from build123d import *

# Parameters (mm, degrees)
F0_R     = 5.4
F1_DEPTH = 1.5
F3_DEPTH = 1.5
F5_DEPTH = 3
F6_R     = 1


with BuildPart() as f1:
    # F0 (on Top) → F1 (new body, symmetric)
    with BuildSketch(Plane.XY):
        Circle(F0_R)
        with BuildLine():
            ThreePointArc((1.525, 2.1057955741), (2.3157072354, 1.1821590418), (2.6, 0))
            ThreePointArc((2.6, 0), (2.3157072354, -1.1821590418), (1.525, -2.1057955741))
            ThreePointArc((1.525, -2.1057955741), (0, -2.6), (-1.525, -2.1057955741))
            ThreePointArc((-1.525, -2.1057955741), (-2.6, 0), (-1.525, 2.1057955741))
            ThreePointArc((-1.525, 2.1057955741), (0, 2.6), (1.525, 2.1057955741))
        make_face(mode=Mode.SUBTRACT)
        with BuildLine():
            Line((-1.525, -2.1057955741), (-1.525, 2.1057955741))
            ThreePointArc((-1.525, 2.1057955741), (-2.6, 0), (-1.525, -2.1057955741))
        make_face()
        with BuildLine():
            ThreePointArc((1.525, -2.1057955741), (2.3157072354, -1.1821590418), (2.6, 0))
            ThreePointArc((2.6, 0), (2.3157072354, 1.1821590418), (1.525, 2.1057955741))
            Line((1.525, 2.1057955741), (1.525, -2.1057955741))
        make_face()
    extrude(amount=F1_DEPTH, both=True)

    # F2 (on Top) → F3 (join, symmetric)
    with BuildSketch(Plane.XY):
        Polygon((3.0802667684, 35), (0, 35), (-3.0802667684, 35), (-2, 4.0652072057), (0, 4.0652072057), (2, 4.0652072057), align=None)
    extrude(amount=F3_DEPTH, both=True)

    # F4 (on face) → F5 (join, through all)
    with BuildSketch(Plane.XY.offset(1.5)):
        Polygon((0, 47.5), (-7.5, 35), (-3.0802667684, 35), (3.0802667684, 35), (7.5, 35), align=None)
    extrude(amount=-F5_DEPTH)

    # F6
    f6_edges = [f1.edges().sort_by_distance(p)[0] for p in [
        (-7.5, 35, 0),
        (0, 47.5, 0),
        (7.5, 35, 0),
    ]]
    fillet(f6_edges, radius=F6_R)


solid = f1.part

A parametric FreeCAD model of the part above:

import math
import FreeCAD as App
import Part
import Sketcher

V = App.Vector
Q = App.Units.Quantity


def edges_at(feature, points):
    """Names of the edges that pass closest to the given points."""
    edges = feature.Shape.Edges
    near = lambda p: min(range(len(edges)), key=lambda i: edges[i].distToShape(Part.Vertex(*p))[0])
    return sorted({f"Edge{near(p) + 1}" for p in points})


def add_polygon(sketch, points):
    """Adds a closed chain of lines whose ends are joined by coincident constraints."""
    first, n = sketch.GeometryCount, len(points)
    for a, b in zip(points, points[1:] + points[:1]):
        sketch.addGeometry(Part.LineSegment(App.Vector(*a, 0), App.Vector(*b, 0)), False)
    for i in range(n):
        sketch.addConstraint(Sketcher.Constraint("Coincident", first + i, 2, first + (i + 1) % n, 1))

doc = App.newDocument("Part")
body = doc.addObject("PartDesign::Body", "Body")

sketch1 = body.newObject("Sketcher::SketchObject", "Sketch")
sketch1.AttachmentSupport = (doc.getObject("XY_Plane"), [""])
sketch1.MapMode = "FlatFace"
sketch1.addGeometry([
    Part.Circle(V(0, 0, 0), V(0, 0, 1), 5.4),
    Part.ArcOfCircle(Part.Circle(V(0, 0, 0), V(0, 0, 1), 2.6), math.radians(54.08825), math.radians(125.91175)),
    Part.LineSegment(V(1.525, 2.105796, 0), V(1.525, -2.105796, 0)),
    Part.ArcOfCircle(Part.Circle(V(0, 0, 0), V(0, 0, 1), 2.6), math.radians(-125.91175), math.radians(-54.08825)),
    Part.LineSegment(V(-1.525, -2.105796, 0), V(-1.525, 2.105796, 0)),
], False)
sketch1.addConstraint([
    Sketcher.Constraint("Coincident", 1, 1, 2, 1),
    Sketcher.Constraint("Coincident", 2, 2, 3, 2),
    Sketcher.Constraint("Coincident", 3, 1, 4, 1),
    Sketcher.Constraint("Coincident", 4, 2, 1, 2),
    Sketcher.Constraint("Vertical", 2),
    Sketcher.Constraint("Vertical", 4),
    Sketcher.Constraint("Coincident", 0, 3, -1, 1),
    Sketcher.Constraint("Coincident", 1, 3, -1, 1),
    Sketcher.Constraint("Coincident", 3, 3, -1, 1),
    Sketcher.Constraint("Equal", 1, 3),
    Sketcher.Constraint("Horizontal", 2, 2, 3, 1),
    Sketcher.Constraint("Diameter", 0, Q("10.8 mm")),
    Sketcher.Constraint("Radius", 1, Q("2.6 mm")),
    Sketcher.Constraint("DistanceX", 3, 1, 2, 2, Q("3.05 mm")),
])
pad1 = body.newObject("PartDesign::Pad", "Pad")
pad1.Profile = sketch1
pad1.Length = 3
pad1.Midplane = True

sketch2 = body.newObject("Sketcher::SketchObject", "Sketch001")
sketch2.AttachmentSupport = (doc.getObject("XY_Plane"), [""])
sketch2.MapMode = "FlatFace"
add_polygon(sketch2, [(3.080267, 35), (-3.080267, 35), (-2, 4.065207), (2, 4.065207)])
sketch2.addConstraint([
    Sketcher.Constraint("Horizontal", 0),
    Sketcher.Constraint("Horizontal", 2),
    Sketcher.Constraint("Equal", 1, 3),
    Sketcher.Constraint("DistanceX", 2, 1, 2, 2, Q("4 mm")),
    Sketcher.Constraint("Angle", 1, Q("-88 deg")),
    Sketcher.Constraint("DistanceY", -1, 1, 0, 2, Q("35 mm")),
    Sketcher.Constraint("DistanceX", 1, 2, -1, 1, Q("2 mm")),
    Sketcher.Constraint("Distance", 1, Q("30.953649 mm")),
])
pad2 = body.newObject("PartDesign::Pad", "Pad001")
pad2.Profile = sketch2
pad2.Length = 3
pad2.Midplane = True

sketch3 = body.newObject("Sketcher::SketchObject", "Sketch002")
sketch3.AttachmentSupport = (doc.getObject("XY_Plane"), [""])
sketch3.MapMode = "FlatFace"
sketch3.AttachmentOffset = App.Placement(V(0, 0, 1.5), App.Rotation())
add_polygon(sketch3, [(0, 47.5), (-7.5, 35), (7.5, 35)])
sketch3.addConstraint([
    Sketcher.Constraint("Horizontal", 1),
    Sketcher.Constraint("PointOnObject", 2, 2, -2),
    Sketcher.Constraint("Equal", 0, 2),
    Sketcher.Constraint("DistanceX", 1, 1, 1, 2, Q("15 mm")),
    Sketcher.Constraint("DistanceY", -1, 1, 0, 2, Q("35 mm")),
    Sketcher.Constraint("DistanceY", -1, 1, 2, 2, Q("47.5 mm")),
])
pad3 = body.newObject("PartDesign::Pad", "Pad002")
pad3.Profile = sketch3
pad3.Length = 3
pad3.Reversed = True
doc.recompute()

fillet = body.newObject("PartDesign::Fillet", "Fillet")
fillet.Base = (pad3, edges_at(pad3, [(-7.5, 35, 0), (0, 47.5, 0), (7.5, 35, 0)]))
fillet.Radius = 1

doc.recompute()
